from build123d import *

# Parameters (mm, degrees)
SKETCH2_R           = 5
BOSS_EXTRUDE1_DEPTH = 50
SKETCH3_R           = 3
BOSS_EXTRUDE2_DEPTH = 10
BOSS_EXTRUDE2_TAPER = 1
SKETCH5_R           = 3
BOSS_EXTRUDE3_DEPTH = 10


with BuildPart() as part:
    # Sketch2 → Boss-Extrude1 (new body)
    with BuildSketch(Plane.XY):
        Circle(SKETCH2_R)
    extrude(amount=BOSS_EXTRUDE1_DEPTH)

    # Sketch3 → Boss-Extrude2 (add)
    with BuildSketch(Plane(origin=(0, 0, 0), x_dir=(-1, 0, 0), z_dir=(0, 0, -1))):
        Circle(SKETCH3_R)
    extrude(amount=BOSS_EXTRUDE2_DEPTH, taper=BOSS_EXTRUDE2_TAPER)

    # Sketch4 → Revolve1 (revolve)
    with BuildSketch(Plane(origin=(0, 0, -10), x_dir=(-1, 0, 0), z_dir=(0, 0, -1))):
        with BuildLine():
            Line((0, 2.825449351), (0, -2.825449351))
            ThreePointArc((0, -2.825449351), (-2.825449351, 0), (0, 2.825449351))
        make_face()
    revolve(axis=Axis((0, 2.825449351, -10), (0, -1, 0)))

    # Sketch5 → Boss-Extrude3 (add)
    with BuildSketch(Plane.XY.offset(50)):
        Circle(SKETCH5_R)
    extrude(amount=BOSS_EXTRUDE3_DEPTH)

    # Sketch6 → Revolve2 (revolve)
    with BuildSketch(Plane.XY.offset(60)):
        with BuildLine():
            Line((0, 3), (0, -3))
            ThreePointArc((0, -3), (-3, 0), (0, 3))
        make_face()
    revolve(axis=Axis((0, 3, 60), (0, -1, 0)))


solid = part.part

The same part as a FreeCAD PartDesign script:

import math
import FreeCAD as App
import Part
import Sketcher

doc = App.newDocument("Part")
params = doc.addObject("Spreadsheet::Sheet", "Params")
for row, (alias, value) in enumerate([
    ("sketch1_diameter", "10 mm"),
    ("pad1_length", "50 mm"),
    ("sketch2_diameter", "6 mm"),
    ("pad2_length", "10 mm"),
    ("pad2_taper", "-1 deg"),
    ("revolution_angle", "360 deg"),
    ("sketch4_diameter", "6 mm"),
    ("pad3_length", "10 mm"),
    ("sketch5_radius", "3 mm"),
    ("revolution2_angle", "360 deg"),
], start=1):
    params.set(f"A{row}", alias)
    params.set(f"B{row}", "=" + value)
    params.setAlias(f"B{row}", alias)

body = doc.addObject("PartDesign::Body", "Body")

# Sketch on XY plane
sketch1 = doc.addObject("Sketcher::SketchObject", "Sketch")
body.addObject(sketch1)
sketch1.AttachmentSupport = (doc.XY_Plane, [""])
sketch1.MapMode = "FlatFace"
sketch1.addGeometry(Part.Circle(App.Vector(0, 0, 0), App.Vector(0, 0, 1), 5), False)
sketch1.addConstraint([
    Sketcher.Constraint("Coincident", 0, 3, -1, 1),
    Sketcher.Constraint("Diameter", 0, 10.0),
])
sketch1.setExpression("Constraints[1]", "Params.sketch1_diameter")
pad1 = doc.addObject("PartDesign::Pad", "Pad")
body.addObject(pad1)
pad1.Profile = sketch1
pad1.setExpression("Length", "Params.pad1_length")

# Sketch on XY plane
sketch2 = doc.addObject("Sketcher::SketchObject", "Sketch001")
body.addObject(sketch2)
sketch2.AttachmentSupport = (doc.XY_Plane, [""])
sketch2.MapMode = "FlatFace"
sketch2.addGeometry(Part.Circle(App.Vector(0, 0, 0), App.Vector(0, 0, 1), 3), False)
sketch2.addConstraint([
    Sketcher.Constraint("Coincident", 0, 3, -1, 1),
    Sketcher.Constraint("Diameter", 0, 6.0),
])
sketch2.setExpression("Constraints[1]", "Params.sketch2_diameter")
pad2 = doc.addObject("PartDesign::Pad", "Pad001")
body.addObject(pad2)
pad2.Profile = sketch2
pad2.setExpression("Length", "Params.pad2_length")
pad2.Reversed = True
pad2.setExpression("TaperAngle", "Params.pad2_taper")

# Sketch on XY plane
sketch3 = doc.addObject("Sketcher::SketchObject", "Sketch002")
body.addObject(sketch3)
sketch3.AttachmentSupport = (doc.XY_Plane, [""])
sketch3.MapMode = "FlatFace"
sketch3.AttachmentOffset = App.Placement(App.Vector(0, 0, -10), App.Rotation())
sketch3.addGeometry([
    Part.LineSegment(App.Vector(0, -2.825449, 0), App.Vector(0, 2.825449, 0)),
    Part.ArcOfCircle(Part.Circle(App.Vector(0, 0, 0), App.Vector(0, 0, 1), 2.825449), math.radians(-90), math.radians(90)),
], False)
sketch3.addConstraint([
    Sketcher.Constraint("Coincident", 0, 1, 1, 1),
    Sketcher.Constraint("Coincident", 1, 2, 0, 2),
    Sketcher.Constraint("Vertical", 0),
    Sketcher.Constraint("Coincident", 1, 3, -1, 1),
    Sketcher.Constraint("PointOnObject", 0, 1, -2),
    Sketcher.Constraint("Radius", 1, 2.825449),
])
revolution = doc.addObject("PartDesign::Revolution", "Revolution")
body.addObject(revolution)
revolution.Profile = sketch3
revolution.ReferenceAxis = (sketch3, ["V_Axis"])
revolution.setExpression("Angle", "Params.revolution_angle")

# Sketch on XY plane
sketch4 = doc.addObject("Sketcher::SketchObject", "Sketch003")
body.addObject(sketch4)
sketch4.AttachmentSupport = (doc.XY_Plane, [""])
sketch4.MapMode = "FlatFace"
sketch4.AttachmentOffset = App.Placement(App.Vector(0, 0, 50), App.Rotation())
sketch4.addGeometry(Part.Circle(App.Vector(0, 0, 0), App.Vector(0, 0, 1), 3), False)
sketch4.addConstraint([
    Sketcher.Constraint("Coincident", 0, 3, -1, 1),
    Sketcher.Constraint("Diameter", 0, 6.0),
])
sketch4.setExpression("Constraints[1]", "Params.sketch4_diameter")
pad3 = doc.addObject("PartDesign::Pad", "Pad002")
body.addObject(pad3)
pad3.Profile = sketch4
pad3.setExpression("Length", "Params.pad3_length")

# Sketch on XY plane
sketch5 = doc.addObject("Sketcher::SketchObject", "Sketch004")
body.addObject(sketch5)
sketch5.AttachmentSupport = (doc.XY_Plane, [""])
sketch5.MapMode = "FlatFace"
sketch5.AttachmentOffset = App.Placement(App.Vector(0, 0, 60), App.Rotation())
sketch5.addGeometry([
    Part.LineSegment(App.Vector(0, -3, 0), App.Vector(0, 3, 0)),
    Part.ArcOfCircle(Part.Circle(App.Vector(0, 0, 0), App.Vector(0, 0, 1), 3), math.radians(90), math.radians(270)),
], False)
sketch5.addConstraint([
    Sketcher.Constraint("Coincident", 0, 1, 1, 2),
    Sketcher.Constraint("Coincident", 1, 1, 0, 2),
    Sketcher.Constraint("Vertical", 0),
    Sketcher.Constraint("Coincident", 1, 3, -1, 1),
    Sketcher.Constraint("PointOnObject", 0, 1, -2),
    Sketcher.Constraint("Radius", 1, 3.0),
])
sketch5.setExpression("Constraints[5]", "Params.sketch5_radius")
revolution2 = doc.addObject("PartDesign::Revolution", "Revolution001")
body.addObject(revolution2)
revolution2.Profile = sketch5
revolution2.ReferenceAxis = (sketch5, ["V_Axis"])
revolution2.setExpression("Angle", "Params.revolution2_angle")

doc.recompute()
